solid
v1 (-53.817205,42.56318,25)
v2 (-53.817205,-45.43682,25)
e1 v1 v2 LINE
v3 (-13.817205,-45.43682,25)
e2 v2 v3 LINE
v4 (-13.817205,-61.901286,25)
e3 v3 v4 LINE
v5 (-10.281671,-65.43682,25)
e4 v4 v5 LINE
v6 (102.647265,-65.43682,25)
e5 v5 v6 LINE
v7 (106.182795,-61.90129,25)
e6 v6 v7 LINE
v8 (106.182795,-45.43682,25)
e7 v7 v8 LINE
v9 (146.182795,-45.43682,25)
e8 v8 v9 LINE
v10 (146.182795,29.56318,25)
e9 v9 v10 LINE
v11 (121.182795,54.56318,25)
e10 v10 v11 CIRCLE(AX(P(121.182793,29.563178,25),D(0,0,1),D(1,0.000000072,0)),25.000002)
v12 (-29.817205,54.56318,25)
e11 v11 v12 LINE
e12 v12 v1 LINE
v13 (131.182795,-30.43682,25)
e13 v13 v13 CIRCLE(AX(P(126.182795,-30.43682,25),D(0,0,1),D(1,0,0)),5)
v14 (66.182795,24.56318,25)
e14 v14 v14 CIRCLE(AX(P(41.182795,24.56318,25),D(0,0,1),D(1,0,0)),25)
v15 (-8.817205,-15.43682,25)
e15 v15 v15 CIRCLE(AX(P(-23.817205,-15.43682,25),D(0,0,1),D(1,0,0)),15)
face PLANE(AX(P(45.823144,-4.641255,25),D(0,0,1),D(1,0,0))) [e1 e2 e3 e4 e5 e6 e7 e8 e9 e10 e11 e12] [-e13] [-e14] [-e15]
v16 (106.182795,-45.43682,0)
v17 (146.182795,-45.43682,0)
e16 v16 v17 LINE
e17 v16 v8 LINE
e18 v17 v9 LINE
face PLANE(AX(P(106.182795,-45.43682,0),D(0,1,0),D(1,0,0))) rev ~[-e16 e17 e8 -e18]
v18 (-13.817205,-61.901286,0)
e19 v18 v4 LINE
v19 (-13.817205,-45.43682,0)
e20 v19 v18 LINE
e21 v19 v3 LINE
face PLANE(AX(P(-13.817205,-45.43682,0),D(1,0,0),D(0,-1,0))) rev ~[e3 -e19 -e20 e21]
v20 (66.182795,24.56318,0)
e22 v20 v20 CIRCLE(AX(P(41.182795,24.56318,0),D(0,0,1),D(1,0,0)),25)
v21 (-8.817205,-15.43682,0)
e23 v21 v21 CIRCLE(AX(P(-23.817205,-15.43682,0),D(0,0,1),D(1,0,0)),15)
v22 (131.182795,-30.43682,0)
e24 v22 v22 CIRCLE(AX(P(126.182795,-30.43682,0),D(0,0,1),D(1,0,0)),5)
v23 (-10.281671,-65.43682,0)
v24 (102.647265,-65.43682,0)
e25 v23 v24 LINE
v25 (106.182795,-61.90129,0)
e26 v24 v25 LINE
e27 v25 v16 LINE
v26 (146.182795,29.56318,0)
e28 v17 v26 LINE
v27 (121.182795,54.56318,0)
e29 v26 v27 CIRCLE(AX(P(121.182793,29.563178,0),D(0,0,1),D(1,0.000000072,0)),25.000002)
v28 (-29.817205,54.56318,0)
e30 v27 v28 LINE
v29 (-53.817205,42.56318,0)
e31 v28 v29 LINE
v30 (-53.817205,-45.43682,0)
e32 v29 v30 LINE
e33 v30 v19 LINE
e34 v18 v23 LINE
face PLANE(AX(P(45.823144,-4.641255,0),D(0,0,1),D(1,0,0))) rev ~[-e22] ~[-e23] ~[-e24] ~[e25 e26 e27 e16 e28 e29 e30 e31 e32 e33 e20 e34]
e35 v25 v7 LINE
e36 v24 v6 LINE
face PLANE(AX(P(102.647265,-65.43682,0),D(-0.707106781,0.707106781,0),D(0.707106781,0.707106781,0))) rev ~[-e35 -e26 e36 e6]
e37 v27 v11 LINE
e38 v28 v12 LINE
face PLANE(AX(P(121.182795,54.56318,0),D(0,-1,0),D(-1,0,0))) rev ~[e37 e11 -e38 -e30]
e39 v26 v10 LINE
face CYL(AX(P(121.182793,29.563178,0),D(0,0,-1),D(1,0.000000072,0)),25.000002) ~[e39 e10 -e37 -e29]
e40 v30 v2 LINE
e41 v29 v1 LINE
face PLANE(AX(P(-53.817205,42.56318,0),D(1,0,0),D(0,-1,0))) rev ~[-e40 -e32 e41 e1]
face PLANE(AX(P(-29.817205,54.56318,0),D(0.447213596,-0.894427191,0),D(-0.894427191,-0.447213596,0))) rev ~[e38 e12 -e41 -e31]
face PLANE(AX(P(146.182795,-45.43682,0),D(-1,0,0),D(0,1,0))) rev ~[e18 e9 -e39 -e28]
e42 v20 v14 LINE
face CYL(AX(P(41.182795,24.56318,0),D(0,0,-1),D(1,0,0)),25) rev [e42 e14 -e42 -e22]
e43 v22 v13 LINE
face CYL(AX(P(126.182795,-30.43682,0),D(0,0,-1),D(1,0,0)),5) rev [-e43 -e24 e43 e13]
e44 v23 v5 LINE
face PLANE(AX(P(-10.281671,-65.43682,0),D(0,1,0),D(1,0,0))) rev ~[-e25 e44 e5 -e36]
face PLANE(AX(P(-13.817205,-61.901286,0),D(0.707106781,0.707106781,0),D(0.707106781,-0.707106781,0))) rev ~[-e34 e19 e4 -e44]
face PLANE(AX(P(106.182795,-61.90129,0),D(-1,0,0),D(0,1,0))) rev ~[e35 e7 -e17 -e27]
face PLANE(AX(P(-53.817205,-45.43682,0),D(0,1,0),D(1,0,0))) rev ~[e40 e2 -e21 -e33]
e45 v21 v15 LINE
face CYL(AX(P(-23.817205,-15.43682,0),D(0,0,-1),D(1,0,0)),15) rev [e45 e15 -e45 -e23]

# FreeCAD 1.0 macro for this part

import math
import FreeCAD as App
import Part
import Sketcher
from FreeCAD import Vector
Q = App.Units.Quantity

doc = App.newDocument("Part")
body = doc.addObject("PartDesign::Body", "Body")

sketch1 = body.newObject("Sketcher::SketchObject", "Sketch")
sketch1.AttachmentSupport = (doc.getObject("XY_Plane"), [""])
sketch1.MapMode = "FlatFace"
sketch1.addGeometry([
    Part.LineSegment(Vector(-29.8, 54.6, 0), Vector(-53.8, 42.6, 0)),
    Part.LineSegment(Vector(-53.8, 42.6, 0), Vector(-53.8, -45.4, 0)),
    Part.LineSegment(Vector(-53.8, -45.4, 0), Vector(-13.8, -45.4, 0)),
    Part.LineSegment(Vector(-13.8, -45.4, 0), Vector(-13.8, -61.9, 0)),
    Part.LineSegment(Vector(-13.8, -61.9, 0), Vector(-10.3, -65.4, 0)),
    Part.LineSegment(Vector(-10.3, -65.4, 0), Vector(102.6, -65.4, 0)),
    Part.LineSegment(Vector(102.6, -65.4, 0), Vector(106.2, -61.9, 0)),
    Part.LineSegment(Vector(106.2, -61.9, 0), Vector(106.2, -45.4, 0)),
    Part.LineSegment(Vector(106.2, -45.4, 0), Vector(146.2, -45.4, 0)),
    Part.LineSegment(Vector(146.2, -45.4, 0), Vector(146.2, 29.6, 0)),
    Part.ArcOfCircle(Part.Circle(Vector(121.2, 29.6, 0), Vector(0, 0, 1), 25), math.radians(0), math.radians(90)),
    Part.LineSegment(Vector(121.2, 54.6, 0), Vector(-29.8, 54.6, 0)),
    Part.Circle(Vector(-23.8, -15.4, 0), Vector(0, 0, 1), 15),
    Part.Circle(Vector(126.2, -30.4, 0), Vector(0, 0, 1), 5),
    Part.Circle(Vector(41.2, 24.6, 0), Vector(0, 0, 1), 25),
], False)
sketch1.addConstraint([
    Sketcher.Constraint("Coincident", 0, 2, 1, 1),
    Sketcher.Constraint("Coincident", 1, 2, 2, 1),
    Sketcher.Constraint("Coincident", 2, 2, 3, 1),
    Sketcher.Constraint("Coincident", 3, 2, 4, 1),
    Sketcher.Constraint("Coincident", 4, 2, 5, 1),
    Sketcher.Constraint("Coincident", 5, 2, 6, 1),
    Sketcher.Constraint("Coincident", 6, 2, 7, 1),
    Sketcher.Constraint("Coincident", 7, 2, 8, 1),
    Sketcher.Constraint("Coincident", 8, 2, 9, 1),
    Sketcher.Constraint("Tangent", 9, 2, 10, 1),
    Sketcher.Constraint("Tangent", 10, 2, 11, 1),
    Sketcher.Constraint("Coincident", 11, 2, 0, 1),
    Sketcher.Constraint("Vertical", 1),
    Sketcher.Constraint("Horizontal", 2),
    Sketcher.Constraint("Vertical", 3),
    Sketcher.Constraint("Horizontal", 5),
    Sketcher.Constraint("Vertical", 7),
    Sketcher.Constraint("Horizontal", 8),
    Sketcher.Constraint("Vertical", 9),
    Sketcher.Constraint("Horizontal", 11),
    Sketcher.Constraint("Equal", 10, 14),
    Sketcher.Constraint("Perpendicular", 4, 6),
    Sketcher.Constraint("Horizontal", 2, 2, 7, 2),
    Sketcher.Constraint("Equal", 2, 8),
    Sketcher.Constraint("Diameter", 12, 30.0),
    Sketcher.Constraint("Diameter", 13, 10.0),
    Sketcher.Constraint("Diameter", 14, 50.0),
    Sketcher.Constraint("DistanceX", 2, 1, 2, 2, 40.0),
    Sketcher.Constraint("DistanceX", 11, 2, 11, 1, 151.0),
    Sketcher.Constraint("DistanceY", 1, 2, 1, 1, 88.0),
    Sketcher.Constraint("DistanceY", 9, 1, 9, 2, 75.0),
    Sketcher.Constraint("Angle", 4, Q("-45 deg")),
    Sketcher.Constraint("Distance", 4, 5.0),
    Sketcher.Constraint("DistanceX", 12, 3, 10, 3, 144.999998),
    Sketcher.Constraint("DistanceY", 12, 3, 10, 3, 44.999998),
    Sketcher.Constraint("DistanceX", 10, 3, 13, 3, 5.000002),
    Sketcher.Constraint("DistanceY", 13, 3, 10, 3, 59.999998),
    Sketcher.Constraint("DistanceX", 12, 3, 14, 3, 65.0),
    Sketcher.Constraint("DistanceY", 12, 3, 14, 3, 40.0),
    Sketcher.Constraint("DistanceX", 0, 2, 12, 3, 30.0),
    Sketcher.Constraint("DistanceY", 4, 2, 2, 2, 20.0),
    Sketcher.Constraint("DistanceY", 7, 1, 7, 2, 16.46447),
    Sketcher.Constraint("DistanceY", -1, 1, 10, 3, 29.563178),
    Sketcher.Constraint("DistanceX", 4, 2, -1, 1, 10.281671),
])
pad1 = body.newObject("PartDesign::Pad", "Pad")
pad1.Profile = sketch1
pad1.Length = 25

doc.recompute()
